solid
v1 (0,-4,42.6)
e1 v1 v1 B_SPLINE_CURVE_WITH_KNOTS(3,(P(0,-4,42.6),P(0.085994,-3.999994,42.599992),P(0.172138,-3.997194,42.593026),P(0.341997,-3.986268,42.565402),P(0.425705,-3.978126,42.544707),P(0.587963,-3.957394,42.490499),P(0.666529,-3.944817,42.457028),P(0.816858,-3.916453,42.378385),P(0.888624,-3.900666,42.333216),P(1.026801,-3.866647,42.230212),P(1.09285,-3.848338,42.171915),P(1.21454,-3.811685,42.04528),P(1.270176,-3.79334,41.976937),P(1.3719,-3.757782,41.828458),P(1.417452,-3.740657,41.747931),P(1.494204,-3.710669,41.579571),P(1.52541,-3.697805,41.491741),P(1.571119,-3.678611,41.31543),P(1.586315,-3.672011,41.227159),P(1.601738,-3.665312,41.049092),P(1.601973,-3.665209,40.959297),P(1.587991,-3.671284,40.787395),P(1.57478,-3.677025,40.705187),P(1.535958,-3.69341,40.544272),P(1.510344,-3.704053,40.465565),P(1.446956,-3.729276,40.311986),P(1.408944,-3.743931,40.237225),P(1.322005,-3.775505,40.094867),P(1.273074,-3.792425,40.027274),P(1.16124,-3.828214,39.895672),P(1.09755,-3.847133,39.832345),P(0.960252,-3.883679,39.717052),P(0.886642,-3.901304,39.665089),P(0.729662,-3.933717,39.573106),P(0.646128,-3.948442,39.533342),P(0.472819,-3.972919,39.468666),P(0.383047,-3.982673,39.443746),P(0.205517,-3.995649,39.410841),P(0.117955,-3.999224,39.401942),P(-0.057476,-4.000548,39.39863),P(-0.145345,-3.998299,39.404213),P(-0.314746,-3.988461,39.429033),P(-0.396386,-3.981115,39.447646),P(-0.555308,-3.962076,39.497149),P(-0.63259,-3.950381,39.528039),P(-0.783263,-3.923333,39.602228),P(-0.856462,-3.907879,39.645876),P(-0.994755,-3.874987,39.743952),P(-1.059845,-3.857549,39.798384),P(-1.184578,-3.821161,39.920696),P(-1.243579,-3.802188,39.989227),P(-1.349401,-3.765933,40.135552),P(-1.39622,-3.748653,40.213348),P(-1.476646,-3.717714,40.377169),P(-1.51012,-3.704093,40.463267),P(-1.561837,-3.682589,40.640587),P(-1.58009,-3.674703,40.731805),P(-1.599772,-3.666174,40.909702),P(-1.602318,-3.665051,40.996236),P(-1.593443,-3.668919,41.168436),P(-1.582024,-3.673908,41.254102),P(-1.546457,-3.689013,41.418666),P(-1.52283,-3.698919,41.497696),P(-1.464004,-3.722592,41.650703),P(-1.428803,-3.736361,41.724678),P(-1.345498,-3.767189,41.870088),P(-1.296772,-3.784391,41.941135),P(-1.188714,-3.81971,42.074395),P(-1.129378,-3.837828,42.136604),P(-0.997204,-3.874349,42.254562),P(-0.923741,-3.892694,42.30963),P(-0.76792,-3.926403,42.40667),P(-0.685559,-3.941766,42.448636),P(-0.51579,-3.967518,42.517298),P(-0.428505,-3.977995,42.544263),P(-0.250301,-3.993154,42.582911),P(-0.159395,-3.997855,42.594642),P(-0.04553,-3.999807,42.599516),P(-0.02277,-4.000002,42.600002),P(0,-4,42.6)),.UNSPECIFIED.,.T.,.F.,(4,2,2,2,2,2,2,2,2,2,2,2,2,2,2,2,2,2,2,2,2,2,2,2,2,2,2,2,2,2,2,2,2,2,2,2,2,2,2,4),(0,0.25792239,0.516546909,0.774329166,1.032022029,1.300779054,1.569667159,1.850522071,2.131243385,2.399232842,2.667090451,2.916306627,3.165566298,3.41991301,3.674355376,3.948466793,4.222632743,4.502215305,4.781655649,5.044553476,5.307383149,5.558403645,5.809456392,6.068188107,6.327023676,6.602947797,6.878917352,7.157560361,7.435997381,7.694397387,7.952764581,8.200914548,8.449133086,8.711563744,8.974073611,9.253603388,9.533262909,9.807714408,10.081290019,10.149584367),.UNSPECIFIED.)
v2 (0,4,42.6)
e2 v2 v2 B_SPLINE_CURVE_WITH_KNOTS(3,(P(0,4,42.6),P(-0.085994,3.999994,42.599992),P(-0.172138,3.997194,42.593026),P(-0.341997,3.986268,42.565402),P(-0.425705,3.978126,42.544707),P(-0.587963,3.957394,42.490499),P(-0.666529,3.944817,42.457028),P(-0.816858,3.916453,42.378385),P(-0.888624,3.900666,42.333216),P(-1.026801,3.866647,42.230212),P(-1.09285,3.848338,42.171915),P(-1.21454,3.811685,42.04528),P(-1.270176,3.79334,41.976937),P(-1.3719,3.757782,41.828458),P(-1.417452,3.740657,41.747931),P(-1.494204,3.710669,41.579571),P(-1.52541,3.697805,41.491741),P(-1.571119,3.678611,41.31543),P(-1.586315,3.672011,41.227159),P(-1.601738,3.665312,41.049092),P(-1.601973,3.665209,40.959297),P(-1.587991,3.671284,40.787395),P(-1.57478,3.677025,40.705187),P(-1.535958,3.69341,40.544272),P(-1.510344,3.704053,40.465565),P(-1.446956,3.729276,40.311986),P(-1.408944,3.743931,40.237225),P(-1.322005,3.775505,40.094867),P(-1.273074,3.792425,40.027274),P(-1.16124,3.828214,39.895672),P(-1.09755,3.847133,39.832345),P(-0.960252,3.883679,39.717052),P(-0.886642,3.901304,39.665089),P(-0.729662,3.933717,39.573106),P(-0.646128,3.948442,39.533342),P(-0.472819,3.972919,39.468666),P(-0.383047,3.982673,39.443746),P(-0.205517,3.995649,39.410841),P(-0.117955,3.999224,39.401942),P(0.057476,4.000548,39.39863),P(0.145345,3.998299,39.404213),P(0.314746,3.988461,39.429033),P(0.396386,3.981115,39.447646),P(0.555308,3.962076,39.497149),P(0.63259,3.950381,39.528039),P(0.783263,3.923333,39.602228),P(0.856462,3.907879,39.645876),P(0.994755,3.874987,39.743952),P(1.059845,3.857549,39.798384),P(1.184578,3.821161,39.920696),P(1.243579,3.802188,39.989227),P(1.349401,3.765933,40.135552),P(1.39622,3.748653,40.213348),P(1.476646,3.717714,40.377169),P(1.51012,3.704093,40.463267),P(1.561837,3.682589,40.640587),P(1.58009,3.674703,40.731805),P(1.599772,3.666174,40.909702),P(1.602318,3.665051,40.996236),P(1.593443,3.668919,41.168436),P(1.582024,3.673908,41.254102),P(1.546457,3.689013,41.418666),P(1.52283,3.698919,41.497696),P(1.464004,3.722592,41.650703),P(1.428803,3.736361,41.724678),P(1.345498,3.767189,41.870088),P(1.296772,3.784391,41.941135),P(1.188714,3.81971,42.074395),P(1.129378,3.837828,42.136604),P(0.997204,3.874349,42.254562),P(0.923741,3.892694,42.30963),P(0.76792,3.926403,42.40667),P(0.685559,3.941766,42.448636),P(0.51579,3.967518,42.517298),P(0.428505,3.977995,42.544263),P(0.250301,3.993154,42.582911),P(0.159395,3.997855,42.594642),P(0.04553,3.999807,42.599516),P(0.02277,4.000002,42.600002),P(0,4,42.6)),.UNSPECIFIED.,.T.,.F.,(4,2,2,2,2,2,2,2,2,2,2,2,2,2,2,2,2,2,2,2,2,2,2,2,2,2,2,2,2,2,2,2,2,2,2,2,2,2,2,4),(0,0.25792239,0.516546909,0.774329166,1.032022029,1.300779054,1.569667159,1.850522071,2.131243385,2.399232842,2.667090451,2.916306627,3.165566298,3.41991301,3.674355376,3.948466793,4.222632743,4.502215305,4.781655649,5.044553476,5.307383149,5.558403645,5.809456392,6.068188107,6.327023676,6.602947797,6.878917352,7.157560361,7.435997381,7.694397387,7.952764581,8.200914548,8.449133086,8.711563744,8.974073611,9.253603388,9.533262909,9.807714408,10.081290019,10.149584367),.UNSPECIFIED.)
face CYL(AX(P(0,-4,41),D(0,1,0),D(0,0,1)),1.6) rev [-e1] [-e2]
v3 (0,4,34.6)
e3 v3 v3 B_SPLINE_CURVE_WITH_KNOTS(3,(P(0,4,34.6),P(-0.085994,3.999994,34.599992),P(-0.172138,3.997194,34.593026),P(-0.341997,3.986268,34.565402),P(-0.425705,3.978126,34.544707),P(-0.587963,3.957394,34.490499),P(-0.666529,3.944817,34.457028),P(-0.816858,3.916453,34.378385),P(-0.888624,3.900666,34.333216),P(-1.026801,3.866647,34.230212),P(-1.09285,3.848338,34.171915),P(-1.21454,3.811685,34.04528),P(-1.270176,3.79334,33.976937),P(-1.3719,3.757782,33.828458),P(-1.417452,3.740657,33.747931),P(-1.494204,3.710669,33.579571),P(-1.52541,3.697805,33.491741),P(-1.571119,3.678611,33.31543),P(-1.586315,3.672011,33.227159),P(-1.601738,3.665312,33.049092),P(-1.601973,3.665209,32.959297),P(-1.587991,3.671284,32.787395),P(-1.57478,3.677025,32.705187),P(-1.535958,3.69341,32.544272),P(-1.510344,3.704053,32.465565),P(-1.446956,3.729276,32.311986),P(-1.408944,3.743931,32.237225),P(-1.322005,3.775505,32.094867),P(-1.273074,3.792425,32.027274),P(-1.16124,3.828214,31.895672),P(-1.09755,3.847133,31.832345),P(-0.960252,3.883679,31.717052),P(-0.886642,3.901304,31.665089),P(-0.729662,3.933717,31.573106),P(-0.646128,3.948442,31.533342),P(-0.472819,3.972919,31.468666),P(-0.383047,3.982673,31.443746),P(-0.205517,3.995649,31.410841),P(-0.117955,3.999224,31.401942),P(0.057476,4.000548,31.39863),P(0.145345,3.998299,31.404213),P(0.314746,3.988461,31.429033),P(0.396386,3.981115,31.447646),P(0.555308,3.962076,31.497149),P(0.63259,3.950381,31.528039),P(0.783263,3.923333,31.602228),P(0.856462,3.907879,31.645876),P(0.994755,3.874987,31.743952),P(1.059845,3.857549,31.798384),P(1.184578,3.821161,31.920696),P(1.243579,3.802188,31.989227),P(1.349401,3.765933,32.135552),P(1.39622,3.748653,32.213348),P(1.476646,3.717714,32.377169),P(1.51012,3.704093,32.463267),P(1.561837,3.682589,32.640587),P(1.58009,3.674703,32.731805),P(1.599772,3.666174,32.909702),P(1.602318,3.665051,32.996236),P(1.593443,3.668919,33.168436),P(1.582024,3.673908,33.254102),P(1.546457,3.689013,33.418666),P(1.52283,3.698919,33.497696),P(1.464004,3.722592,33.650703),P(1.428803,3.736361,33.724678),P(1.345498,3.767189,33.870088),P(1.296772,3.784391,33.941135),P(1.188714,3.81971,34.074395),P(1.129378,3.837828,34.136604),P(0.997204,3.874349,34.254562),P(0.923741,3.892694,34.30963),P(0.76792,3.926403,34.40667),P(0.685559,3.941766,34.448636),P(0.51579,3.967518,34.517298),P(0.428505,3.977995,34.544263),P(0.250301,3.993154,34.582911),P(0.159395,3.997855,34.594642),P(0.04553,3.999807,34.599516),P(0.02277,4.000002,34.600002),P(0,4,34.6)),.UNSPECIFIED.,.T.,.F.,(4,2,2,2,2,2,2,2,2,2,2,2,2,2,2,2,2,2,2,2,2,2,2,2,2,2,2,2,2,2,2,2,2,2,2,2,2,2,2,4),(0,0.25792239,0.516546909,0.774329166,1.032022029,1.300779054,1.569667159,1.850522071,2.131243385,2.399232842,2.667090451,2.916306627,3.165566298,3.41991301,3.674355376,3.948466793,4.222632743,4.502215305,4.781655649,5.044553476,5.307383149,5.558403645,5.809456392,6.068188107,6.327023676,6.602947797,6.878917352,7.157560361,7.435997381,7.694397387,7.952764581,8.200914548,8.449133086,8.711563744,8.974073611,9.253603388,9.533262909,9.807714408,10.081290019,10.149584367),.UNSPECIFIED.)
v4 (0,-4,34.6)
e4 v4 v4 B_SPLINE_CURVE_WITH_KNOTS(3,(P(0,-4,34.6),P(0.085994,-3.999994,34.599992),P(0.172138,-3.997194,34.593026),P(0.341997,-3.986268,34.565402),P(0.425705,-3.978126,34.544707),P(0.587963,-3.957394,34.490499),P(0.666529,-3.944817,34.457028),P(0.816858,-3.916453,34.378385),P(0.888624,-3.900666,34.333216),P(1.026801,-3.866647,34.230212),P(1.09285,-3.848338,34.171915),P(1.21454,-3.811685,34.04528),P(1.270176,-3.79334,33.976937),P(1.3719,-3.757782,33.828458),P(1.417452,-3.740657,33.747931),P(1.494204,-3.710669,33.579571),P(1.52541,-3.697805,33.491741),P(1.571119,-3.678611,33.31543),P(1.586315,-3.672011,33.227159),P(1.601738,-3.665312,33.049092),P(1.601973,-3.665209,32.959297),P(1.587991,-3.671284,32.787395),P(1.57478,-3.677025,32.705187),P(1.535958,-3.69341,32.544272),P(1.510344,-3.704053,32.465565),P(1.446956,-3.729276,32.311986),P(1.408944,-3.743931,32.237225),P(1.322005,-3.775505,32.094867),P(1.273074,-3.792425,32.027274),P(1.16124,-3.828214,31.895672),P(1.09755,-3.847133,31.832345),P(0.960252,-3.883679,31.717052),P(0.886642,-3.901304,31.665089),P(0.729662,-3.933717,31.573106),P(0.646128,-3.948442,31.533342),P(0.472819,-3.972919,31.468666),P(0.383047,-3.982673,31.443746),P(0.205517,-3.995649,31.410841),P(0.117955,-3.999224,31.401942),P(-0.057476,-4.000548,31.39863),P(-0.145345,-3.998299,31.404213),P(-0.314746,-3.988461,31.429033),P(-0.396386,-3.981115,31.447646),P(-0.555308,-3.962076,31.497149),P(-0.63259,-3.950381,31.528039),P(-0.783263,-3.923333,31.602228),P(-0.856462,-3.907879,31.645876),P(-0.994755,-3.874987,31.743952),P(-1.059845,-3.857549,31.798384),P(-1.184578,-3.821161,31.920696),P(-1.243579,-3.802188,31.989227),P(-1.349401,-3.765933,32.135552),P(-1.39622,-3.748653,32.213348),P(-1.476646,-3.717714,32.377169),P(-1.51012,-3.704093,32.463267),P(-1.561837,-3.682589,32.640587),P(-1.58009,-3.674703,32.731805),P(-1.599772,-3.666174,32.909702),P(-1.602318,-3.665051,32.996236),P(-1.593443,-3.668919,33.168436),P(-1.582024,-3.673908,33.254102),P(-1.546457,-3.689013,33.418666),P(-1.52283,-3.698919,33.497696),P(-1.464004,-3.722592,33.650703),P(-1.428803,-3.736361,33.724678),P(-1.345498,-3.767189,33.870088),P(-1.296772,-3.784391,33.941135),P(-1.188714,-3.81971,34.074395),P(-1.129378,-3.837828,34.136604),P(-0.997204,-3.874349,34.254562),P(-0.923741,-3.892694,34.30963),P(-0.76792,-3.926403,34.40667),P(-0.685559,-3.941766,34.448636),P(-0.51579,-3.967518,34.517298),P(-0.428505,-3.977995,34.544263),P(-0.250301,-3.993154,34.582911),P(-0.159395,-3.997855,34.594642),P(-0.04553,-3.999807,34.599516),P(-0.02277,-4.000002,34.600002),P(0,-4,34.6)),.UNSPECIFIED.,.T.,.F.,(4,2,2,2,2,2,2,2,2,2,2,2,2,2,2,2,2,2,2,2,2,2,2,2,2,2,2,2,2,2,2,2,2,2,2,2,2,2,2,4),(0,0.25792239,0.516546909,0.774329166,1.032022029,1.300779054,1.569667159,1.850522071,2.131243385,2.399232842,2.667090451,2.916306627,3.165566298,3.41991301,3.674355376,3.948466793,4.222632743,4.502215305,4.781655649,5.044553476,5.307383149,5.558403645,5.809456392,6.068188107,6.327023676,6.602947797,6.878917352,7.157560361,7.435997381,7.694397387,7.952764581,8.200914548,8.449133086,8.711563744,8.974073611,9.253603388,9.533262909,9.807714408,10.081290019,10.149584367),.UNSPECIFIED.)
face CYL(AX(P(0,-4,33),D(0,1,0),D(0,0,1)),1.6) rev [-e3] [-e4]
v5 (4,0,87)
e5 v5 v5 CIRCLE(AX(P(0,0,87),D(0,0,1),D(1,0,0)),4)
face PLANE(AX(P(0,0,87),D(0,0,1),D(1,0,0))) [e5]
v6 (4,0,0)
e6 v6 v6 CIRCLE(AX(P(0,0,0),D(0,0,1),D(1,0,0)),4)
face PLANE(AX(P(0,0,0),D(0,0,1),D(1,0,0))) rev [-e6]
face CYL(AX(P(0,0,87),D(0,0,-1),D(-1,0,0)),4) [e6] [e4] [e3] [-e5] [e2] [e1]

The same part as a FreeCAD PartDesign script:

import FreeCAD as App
import Part
import Sketcher

doc = App.newDocument("Part")
body = doc.addObject("PartDesign::Body", "Body")

# Sketch on XY plane
sketch1 = body.newObject("Sketcher::SketchObject", "Sketch")
sketch1.AttachmentSupport = (doc.getObject("XY_Plane"), [""])
sketch1.MapMode = "FlatFace"
sketch1.addGeometry(Part.Circle(App.Vector(0, 0, 0), App.Vector(0, 0, 1), 4), False)
sketch1.addConstraint(Sketcher.Constraint("Coincident", 0, 3, -1, 1))
sketch1.addConstraint(Sketcher.Constraint("Diameter", 0, 8.0))
pad1 = body.newObject("PartDesign::Pad", "Pad")
pad1.Profile = sketch1
pad1.Length = 87

# Sketch on XZ plane
sketch2 = body.newObject("Sketcher::SketchObject", "Sketch001")
sketch2.AttachmentSupport = (doc.getObject("XZ_Plane"), [""])
sketch2.MapMode = "FlatFace"
sketch2.AttachmentOffset = App.Placement(App.Vector(0, 0, -4), App.Rotation())
sketch2.addGeometry(Part.Circle(App.Vector(0, 33, 0), App.Vector(0, 0, 1), 1.6), False)
sketch2.addGeometry(Part.Circle(App.Vector(0, 41, 0), App.Vector(0, 0, 1), 1.6), False)
sketch2.addConstraint(Sketcher.Constraint("Equal", 0, 1))
sketch2.addConstraint(Sketcher.Constraint("PointOnObject", 0, 3, -2))
sketch2.addConstraint(Sketcher.Constraint("PointOnObject", 1, 3, -2))
sketch2.addConstraint(Sketcher.Constraint("Diameter", 0, 3.2))
sketch2.addConstraint(Sketcher.Constraint("DistanceY", -1, 1, 0, 3, 33.0))
sketch2.addConstraint(Sketcher.Constraint("DistanceY", -1, 1, 1, 3, 41.0))
pocket1 = body.newObject("PartDesign::Pocket", "Pocket")
pocket1.Profile = sketch2
pocket1.Type = "ThroughAll"
pocket1.Reversed = True

doc.recompute()
